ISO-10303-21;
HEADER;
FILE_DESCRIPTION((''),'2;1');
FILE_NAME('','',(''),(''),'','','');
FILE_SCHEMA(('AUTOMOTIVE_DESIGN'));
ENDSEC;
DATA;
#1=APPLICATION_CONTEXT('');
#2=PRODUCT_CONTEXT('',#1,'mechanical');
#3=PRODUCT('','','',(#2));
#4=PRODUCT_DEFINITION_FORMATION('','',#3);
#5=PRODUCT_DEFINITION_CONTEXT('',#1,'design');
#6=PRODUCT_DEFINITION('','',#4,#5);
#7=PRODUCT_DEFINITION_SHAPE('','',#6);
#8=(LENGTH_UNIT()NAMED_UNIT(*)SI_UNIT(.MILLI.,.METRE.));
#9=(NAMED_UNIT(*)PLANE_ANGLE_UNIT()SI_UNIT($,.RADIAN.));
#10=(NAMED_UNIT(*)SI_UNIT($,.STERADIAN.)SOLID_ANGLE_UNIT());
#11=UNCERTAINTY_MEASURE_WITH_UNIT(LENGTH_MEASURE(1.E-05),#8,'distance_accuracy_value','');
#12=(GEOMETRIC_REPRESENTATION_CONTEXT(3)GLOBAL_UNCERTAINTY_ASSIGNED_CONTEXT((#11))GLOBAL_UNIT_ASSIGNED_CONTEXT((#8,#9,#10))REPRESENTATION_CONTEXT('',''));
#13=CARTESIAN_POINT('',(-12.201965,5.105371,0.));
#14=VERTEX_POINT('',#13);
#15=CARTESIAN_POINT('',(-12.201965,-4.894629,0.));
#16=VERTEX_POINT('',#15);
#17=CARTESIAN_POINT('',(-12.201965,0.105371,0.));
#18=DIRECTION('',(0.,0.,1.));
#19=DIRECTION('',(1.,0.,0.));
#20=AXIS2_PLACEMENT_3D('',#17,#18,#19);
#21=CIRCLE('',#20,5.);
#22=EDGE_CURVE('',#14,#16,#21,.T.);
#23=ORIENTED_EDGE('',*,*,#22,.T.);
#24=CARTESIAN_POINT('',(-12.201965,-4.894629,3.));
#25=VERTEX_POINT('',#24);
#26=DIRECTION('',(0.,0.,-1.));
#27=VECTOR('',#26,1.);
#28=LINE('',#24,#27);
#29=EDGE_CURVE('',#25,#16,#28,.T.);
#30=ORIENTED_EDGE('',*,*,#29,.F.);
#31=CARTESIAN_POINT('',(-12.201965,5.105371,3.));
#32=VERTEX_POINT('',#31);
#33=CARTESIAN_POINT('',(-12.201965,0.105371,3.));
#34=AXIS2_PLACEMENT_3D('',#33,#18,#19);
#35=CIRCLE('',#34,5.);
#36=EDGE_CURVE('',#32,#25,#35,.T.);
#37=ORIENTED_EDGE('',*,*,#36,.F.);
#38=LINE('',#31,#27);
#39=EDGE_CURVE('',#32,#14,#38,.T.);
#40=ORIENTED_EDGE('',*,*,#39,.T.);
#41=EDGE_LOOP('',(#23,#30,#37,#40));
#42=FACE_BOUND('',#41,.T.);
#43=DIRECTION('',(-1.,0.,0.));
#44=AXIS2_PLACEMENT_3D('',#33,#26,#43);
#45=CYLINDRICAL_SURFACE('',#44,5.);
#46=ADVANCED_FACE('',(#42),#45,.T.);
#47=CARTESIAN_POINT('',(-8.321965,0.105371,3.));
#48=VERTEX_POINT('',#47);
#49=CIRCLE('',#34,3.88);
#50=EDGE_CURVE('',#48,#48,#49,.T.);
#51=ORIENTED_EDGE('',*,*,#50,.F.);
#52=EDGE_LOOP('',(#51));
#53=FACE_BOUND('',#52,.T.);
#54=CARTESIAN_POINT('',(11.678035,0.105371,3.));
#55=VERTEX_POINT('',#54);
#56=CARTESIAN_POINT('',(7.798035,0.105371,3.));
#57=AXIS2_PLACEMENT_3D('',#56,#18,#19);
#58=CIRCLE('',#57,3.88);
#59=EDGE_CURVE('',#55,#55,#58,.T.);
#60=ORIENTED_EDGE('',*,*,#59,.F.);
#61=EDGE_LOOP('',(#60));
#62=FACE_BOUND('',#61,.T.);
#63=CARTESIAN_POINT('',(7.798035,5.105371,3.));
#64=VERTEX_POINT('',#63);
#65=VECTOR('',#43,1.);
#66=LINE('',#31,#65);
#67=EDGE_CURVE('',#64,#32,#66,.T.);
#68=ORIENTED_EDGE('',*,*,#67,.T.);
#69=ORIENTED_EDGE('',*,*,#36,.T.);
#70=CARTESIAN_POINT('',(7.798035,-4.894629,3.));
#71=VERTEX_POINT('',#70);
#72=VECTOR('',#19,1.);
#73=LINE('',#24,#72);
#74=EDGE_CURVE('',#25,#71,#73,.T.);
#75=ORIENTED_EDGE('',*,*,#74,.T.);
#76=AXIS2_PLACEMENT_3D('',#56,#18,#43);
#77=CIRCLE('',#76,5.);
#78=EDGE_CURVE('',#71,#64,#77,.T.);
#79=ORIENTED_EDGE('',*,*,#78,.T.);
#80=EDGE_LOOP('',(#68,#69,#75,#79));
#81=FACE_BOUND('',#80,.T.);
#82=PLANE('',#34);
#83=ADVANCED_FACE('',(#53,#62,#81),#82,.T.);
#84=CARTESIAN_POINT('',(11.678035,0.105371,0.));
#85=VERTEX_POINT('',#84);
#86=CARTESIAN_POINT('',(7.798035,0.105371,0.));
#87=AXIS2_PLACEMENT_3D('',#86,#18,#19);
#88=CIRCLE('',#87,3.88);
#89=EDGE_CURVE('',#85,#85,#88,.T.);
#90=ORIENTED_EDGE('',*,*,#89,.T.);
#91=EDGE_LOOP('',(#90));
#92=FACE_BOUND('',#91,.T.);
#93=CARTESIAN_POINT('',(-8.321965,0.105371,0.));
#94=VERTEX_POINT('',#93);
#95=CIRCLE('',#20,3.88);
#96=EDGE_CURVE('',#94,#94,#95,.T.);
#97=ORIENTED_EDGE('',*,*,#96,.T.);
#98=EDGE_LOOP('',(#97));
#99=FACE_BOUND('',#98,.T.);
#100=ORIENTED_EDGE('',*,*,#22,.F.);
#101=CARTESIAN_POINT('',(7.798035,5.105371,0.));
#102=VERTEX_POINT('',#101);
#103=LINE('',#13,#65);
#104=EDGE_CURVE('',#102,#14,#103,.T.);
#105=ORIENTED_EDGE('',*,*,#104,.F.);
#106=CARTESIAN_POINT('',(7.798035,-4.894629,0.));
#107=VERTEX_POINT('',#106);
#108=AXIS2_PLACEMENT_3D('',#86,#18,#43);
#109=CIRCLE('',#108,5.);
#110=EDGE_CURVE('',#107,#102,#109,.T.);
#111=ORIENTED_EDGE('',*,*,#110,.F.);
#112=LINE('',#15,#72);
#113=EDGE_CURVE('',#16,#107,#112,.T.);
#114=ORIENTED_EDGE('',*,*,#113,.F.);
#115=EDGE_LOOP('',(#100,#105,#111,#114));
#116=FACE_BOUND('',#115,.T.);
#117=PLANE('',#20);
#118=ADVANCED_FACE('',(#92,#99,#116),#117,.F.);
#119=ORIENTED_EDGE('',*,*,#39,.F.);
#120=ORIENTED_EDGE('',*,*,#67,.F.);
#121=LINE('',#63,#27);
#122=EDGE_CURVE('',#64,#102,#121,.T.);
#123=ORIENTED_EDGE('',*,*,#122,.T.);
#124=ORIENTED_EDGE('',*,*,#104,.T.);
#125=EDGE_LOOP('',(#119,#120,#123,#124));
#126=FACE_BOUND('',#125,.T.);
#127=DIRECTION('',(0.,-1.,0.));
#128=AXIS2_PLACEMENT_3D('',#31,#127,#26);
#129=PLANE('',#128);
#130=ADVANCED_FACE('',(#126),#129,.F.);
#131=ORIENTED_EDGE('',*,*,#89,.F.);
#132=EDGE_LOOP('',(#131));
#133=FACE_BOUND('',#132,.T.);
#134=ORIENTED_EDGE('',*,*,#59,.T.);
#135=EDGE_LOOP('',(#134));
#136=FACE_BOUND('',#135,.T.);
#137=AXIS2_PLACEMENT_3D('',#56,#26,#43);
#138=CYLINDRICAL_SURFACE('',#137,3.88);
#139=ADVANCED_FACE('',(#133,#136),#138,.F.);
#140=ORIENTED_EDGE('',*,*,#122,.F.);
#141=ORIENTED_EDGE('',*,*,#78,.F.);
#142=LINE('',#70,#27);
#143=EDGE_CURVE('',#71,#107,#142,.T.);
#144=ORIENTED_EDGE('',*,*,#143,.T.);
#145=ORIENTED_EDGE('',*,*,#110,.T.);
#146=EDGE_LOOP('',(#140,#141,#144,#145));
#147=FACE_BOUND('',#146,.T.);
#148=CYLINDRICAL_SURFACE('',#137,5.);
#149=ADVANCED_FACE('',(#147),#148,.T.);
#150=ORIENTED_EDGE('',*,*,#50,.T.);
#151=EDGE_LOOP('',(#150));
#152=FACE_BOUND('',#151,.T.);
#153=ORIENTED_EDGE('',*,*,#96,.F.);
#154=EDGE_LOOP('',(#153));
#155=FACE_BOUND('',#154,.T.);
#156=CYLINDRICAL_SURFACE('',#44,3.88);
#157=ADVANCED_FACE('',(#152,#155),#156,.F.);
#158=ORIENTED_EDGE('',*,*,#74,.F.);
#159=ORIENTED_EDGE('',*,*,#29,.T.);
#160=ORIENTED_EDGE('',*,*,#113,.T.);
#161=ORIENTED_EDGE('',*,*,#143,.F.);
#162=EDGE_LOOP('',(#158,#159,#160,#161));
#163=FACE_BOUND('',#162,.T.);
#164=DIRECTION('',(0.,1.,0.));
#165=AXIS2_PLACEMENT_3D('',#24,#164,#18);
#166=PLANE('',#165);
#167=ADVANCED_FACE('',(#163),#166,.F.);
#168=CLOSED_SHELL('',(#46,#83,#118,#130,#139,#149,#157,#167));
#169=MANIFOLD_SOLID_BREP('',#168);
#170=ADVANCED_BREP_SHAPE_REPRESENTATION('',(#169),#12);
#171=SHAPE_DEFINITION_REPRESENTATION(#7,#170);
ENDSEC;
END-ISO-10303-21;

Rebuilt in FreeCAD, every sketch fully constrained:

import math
import FreeCAD as App
import Part
import Sketcher

V = App.Vector

doc = App.newDocument("Part")
body = doc.addObject("PartDesign::Body", "Body")

sketch1 = body.newObject("Sketcher::SketchObject", "Sketch")
sketch1.AttachmentSupport = (doc.getObject("XY_Plane"), [""])
sketch1.MapMode = "FlatFace"
sketch1.addGeometry(Part.LineSegment(V(-12.201965, -4.894629, 0), V(7.798035, -4.894629, 0)), False)
sketch1.addGeometry(Part.ArcOfCircle(Part.Circle(V(7.798035, 0.105371, 0), V(0, 0, 1), 5), math.radians(-90), math.radians(90)), False)
sketch1.addGeometry(Part.LineSegment(V(7.798035, 5.105371, 0), V(-12.201965, 5.105371, 0)), False)
sketch1.addGeometry(Part.ArcOfCircle(Part.Circle(V(-12.201965, 0.105371, 0), V(0, 0, 1), 5), math.radians(90), math.radians(270)), False)
sketch1.addGeometry(Part.Circle(V(-12.201965, 0.105371, 0), V(0, 0, 1), 3.88), False)
sketch1.addGeometry(Part.Circle(V(7.798035, 0.105371, 0), V(0, 0, 1), 3.88), False)
sketch1.addConstraint(Sketcher.Constraint("Tangent", 0, 2, 1, 1))
sketch1.addConstraint(Sketcher.Constraint("Tangent", 1, 2, 2, 1))
sketch1.addConstraint(Sketcher.Constraint("Tangent", 2, 2, 3, 1))
sketch1.addConstraint(Sketcher.Constraint("Tangent", 3, 2, 0, 1))
sketch1.addConstraint(Sketcher.Constraint("Horizontal", 0))
sketch1.addConstraint(Sketcher.Constraint("Horizontal", 2))
sketch1.addConstraint(Sketcher.Constraint("Coincident", 4, 3, 3, 3))
sketch1.addConstraint(Sketcher.Constraint("Coincident", 5, 3, 1, 3))
sketch1.addConstraint(Sketcher.Constraint("Equal", 4, 5))
sketch1.addConstraint(Sketcher.Constraint("Radius", 1, 5.0))
sketch1.addConstraint(Sketcher.Constraint("Diameter", 4, 7.76))
sketch1.addConstraint(Sketcher.Constraint("DistanceX", 0, 1, 0, 2, 20.0))
sketch1.addConstraint(Sketcher.Constraint("DistanceY", -1, 1, 1, 3, 0.105371))
sketch1.addConstraint(Sketcher.Constraint("DistanceX", -1, 1, 1, 3, 7.798035))
pad1 = body.newObject("PartDesign::Pad", "Pad")
pad1.Profile = sketch1
pad1.Length = 3

doc.recompute()
